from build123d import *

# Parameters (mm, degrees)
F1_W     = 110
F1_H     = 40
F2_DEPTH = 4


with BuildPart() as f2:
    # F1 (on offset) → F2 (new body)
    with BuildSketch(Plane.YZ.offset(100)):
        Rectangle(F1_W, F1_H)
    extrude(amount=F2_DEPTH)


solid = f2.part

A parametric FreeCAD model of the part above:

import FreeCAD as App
import Part
import Sketcher
from FreeCAD import Vector


def add_polygon(sketch, points):
    """Adds a closed chain of lines whose ends are joined by coincident constraints."""
    first, n = sketch.GeometryCount, len(points)
    for a, b in zip(points, points[1:] + points[:1]):
        sketch.addGeometry(Part.LineSegment(App.Vector(*a, 0), App.Vector(*b, 0)), False)
    for i in range(n):
        sketch.addConstraint(Sketcher.Constraint("Coincident", first + i, 2, first + (i + 1) % n, 1))

doc = App.newDocument("Part")
body = doc.addObject("PartDesign::Body", "Body")

# Sketch on YZ plane
sketch1 = body.newObject("Sketcher::SketchObject", "Sketch")
sketch1.AttachmentSupport = (doc.getObject("YZ_Plane"), [""])
sketch1.MapMode = "FlatFace"
sketch1.AttachmentOffset = App.Placement(Vector(0, 0, 100), App.Rotation())
add_polygon(sketch1, [(-55, 20), (-55, -20), (55, -20), (55, 20)])  # lines 0-3
sketch1.addConstraint([
    Sketcher.Constraint("Vertical", 0),
    Sketcher.Constraint("Horizontal", 1),
    Sketcher.Constraint("Vertical", 2),
    Sketcher.Constraint("Horizontal", 3),
    Sketcher.Constraint("Symmetric", 0, 2, 2, 2, -1, 1),
    Sketcher.Constraint("DistanceX", 1, 1, 1, 2, 110.0),
    Sketcher.Constraint("DistanceY", 0, 2, 0, 1, 40.0),
])
pad1 = body.newObject("PartDesign::Pad", "Pad")
pad1.Profile = sketch1
pad1.Length = 4

doc.recompute()
